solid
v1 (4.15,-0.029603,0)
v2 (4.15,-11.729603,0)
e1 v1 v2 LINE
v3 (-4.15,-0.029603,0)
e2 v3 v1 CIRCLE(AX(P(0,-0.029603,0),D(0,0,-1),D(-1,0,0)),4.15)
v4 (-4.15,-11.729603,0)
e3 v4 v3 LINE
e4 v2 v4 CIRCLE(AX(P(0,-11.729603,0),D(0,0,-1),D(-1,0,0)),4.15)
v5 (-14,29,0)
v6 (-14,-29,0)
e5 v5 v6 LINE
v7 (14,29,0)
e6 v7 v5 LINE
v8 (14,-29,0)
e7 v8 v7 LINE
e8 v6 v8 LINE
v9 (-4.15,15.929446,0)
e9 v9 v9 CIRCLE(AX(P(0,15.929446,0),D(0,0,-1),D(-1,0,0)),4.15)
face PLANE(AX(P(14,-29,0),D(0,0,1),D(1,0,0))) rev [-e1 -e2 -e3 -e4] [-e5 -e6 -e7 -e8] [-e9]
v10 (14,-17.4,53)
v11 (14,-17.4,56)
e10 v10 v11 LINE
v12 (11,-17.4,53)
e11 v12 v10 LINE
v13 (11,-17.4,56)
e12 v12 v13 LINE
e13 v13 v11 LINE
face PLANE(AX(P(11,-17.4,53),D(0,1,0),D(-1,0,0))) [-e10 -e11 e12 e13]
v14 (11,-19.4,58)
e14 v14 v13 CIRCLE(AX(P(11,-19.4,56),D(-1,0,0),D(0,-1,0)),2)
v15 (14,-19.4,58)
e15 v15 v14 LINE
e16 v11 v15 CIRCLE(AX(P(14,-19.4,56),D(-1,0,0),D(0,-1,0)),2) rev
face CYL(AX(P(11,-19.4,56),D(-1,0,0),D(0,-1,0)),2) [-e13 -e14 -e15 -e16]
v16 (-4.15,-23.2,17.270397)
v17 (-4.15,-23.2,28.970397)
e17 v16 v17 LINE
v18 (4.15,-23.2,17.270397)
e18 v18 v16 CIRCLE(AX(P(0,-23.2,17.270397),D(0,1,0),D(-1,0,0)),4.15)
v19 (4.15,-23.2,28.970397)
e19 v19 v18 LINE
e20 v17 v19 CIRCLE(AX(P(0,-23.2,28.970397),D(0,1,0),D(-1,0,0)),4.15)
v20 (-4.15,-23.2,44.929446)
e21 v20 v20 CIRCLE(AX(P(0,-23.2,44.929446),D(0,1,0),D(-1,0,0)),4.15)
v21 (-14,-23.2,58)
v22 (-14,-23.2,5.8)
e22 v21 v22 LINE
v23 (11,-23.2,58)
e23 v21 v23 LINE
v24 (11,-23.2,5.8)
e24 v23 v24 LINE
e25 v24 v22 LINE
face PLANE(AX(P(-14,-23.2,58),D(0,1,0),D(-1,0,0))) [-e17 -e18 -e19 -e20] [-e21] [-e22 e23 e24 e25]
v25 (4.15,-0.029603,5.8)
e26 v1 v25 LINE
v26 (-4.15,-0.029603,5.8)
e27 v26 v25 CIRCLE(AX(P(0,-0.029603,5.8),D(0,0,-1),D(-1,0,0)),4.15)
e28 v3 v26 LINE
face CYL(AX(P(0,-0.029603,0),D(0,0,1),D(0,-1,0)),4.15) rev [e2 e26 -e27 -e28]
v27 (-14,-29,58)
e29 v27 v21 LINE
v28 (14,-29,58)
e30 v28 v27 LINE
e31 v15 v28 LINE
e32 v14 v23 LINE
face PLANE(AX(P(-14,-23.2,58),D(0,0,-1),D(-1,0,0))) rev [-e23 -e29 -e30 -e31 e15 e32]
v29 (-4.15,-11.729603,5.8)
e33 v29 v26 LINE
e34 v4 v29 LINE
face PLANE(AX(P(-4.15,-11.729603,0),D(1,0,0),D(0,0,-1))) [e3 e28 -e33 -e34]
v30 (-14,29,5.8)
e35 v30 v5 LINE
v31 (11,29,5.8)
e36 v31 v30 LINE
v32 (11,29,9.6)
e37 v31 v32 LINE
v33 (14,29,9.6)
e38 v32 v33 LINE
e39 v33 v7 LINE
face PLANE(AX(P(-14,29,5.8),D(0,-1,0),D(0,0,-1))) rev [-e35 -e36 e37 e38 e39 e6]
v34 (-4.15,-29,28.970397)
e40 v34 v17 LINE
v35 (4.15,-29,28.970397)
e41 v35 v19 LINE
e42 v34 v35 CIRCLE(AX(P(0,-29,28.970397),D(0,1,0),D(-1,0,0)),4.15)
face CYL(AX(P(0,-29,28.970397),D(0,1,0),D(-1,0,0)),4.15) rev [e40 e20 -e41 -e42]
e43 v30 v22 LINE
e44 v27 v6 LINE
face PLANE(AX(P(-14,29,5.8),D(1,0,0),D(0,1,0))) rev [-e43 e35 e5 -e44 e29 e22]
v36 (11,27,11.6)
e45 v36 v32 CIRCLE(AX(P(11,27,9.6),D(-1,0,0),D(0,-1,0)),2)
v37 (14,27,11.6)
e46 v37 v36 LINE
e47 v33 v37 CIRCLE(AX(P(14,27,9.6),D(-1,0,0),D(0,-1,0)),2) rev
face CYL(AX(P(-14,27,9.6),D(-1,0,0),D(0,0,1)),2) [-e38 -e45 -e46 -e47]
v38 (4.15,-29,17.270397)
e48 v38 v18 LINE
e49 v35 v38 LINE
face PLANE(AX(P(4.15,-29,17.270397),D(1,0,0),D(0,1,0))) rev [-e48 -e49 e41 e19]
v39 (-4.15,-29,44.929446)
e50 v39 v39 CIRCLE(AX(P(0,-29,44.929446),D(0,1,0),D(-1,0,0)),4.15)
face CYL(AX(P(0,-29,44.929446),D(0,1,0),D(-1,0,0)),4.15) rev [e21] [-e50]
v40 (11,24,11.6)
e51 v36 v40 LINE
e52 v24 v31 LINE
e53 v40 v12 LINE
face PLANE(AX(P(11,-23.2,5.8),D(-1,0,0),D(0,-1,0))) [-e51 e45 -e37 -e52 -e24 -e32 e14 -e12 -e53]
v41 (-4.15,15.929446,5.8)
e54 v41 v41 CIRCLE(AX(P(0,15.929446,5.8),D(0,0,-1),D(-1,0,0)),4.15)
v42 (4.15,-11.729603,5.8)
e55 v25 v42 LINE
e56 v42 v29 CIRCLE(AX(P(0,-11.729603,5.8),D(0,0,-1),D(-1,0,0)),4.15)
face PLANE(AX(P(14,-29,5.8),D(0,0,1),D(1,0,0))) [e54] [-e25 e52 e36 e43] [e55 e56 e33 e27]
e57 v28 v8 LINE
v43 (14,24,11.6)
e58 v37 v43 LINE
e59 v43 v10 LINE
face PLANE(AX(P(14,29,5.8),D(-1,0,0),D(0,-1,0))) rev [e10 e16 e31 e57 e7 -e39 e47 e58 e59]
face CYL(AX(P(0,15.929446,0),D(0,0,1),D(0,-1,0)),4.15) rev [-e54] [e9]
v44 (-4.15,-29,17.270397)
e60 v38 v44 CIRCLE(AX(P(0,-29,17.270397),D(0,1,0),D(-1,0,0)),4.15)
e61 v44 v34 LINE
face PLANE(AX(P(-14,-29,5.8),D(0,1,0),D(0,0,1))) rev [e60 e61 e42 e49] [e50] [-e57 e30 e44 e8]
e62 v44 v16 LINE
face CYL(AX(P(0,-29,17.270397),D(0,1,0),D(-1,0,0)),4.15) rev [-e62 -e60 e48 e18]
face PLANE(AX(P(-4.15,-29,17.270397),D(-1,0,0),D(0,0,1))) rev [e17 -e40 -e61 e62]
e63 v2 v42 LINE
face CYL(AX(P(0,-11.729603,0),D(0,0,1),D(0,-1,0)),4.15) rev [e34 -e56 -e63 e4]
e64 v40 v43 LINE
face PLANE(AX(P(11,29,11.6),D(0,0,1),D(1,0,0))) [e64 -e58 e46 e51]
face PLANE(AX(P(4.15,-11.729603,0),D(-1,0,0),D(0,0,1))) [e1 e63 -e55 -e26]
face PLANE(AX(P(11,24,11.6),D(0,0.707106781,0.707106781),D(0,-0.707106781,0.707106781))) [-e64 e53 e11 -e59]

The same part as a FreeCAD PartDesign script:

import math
import FreeCAD as App
import Part
import Sketcher
Q = App.Units.Quantity


def edges_at(feature, points):
    """Names of the edges that pass closest to the given points."""
    edges = feature.Shape.Edges
    near = lambda p: min(range(len(edges)), key=lambda i: edges[i].distToShape(Part.Vertex(*p))[0])
    return sorted({f"Edge{near(p) + 1}" for p in points})

doc = App.newDocument("Part")
body = doc.addObject("PartDesign::Body", "Body")

# Sketch on XY plane
sketch1 = body.newObject("Sketcher::SketchObject", "Sketch")
sketch1.AttachmentSupport = (doc.getObject("XY_Plane"), [""])
sketch1.MapMode = "FlatFace"
sketch1.addGeometry(Part.LineSegment(App.Vector(-14, 29, 0), App.Vector(-14, -29, 0)), False)
sketch1.addGeometry(Part.LineSegment(App.Vector(-14, -29, 0), App.Vector(14, -29, 0)), False)
sketch1.addGeometry(Part.LineSegment(App.Vector(14, -29, 0), App.Vector(14, 29, 0)), False)
sketch1.addGeometry(Part.LineSegment(App.Vector(14, 29, 0), App.Vector(-14, 29, 0)), False)
sketch1.addConstraint(Sketcher.Constraint("Coincident", 0, 2, 1, 1))
sketch1.addConstraint(Sketcher.Constraint("Coincident", 1, 2, 2, 1))
sketch1.addConstraint(Sketcher.Constraint("Coincident", 2, 2, 3, 1))
sketch1.addConstraint(Sketcher.Constraint("Coincident", 3, 2, 0, 1))
sketch1.addConstraint(Sketcher.Constraint("Vertical", 0))
sketch1.addConstraint(Sketcher.Constraint("Horizontal", 1))
sketch1.addConstraint(Sketcher.Constraint("Vertical", 2))
sketch1.addConstraint(Sketcher.Constraint("Horizontal", 3))
sketch1.addConstraint(Sketcher.Constraint("Symmetric", 0, 2, 2, 2, -1, 1))
sketch1.addConstraint(Sketcher.Constraint("DistanceX", 1, 1, 1, 2, Q("28 mm")))
sketch1.addConstraint(Sketcher.Constraint("DistanceY", 0, 2, 0, 1, Q("58 mm")))
pad1 = body.newObject("PartDesign::Pad", "Pad")
pad1.Profile = sketch1
pad1.Length = 5.8

# Sketch on XY plane
sketch2 = body.newObject("Sketcher::SketchObject", "Sketch001")
sketch2.AttachmentSupport = (doc.getObject("XY_Plane"), [""])
sketch2.MapMode = "FlatFace"
sketch2.addGeometry(Part.LineSegment(App.Vector(14, -23.2, 0), App.Vector(14, -29, 0)), False)
sketch2.addGeometry(Part.LineSegment(App.Vector(14, -29, 0), App.Vector(-14, -29, 0)), False)
sketch2.addGeometry(Part.LineSegment(App.Vector(-14, -29, 0), App.Vector(-14, -23.2, 0)), False)
sketch2.addGeometry(Part.LineSegment(App.Vector(-14, -23.2, 0), App.Vector(14, -23.2, 0)), False)
sketch2.addConstraint(Sketcher.Constraint("Coincident", 0, 2, 1, 1))
sketch2.addConstraint(Sketcher.Constraint("Coincident", 1, 2, 2, 1))
sketch2.addConstraint(Sketcher.Constraint("Coincident", 2, 2, 3, 1))
sketch2.addConstraint(Sketcher.Constraint("Coincident", 3, 2, 0, 1))
sketch2.addConstraint(Sketcher.Constraint("Vertical", 0))
sketch2.addConstraint(Sketcher.Constraint("Horizontal", 1))
sketch2.addConstraint(Sketcher.Constraint("Vertical", 2))
sketch2.addConstraint(Sketcher.Constraint("Horizontal", 3))
sketch2.addConstraint(Sketcher.Constraint("DistanceX", 1, 2, 1, 1, Q("28 mm")))
sketch2.addConstraint(Sketcher.Constraint("DistanceY", 0, 2, 0, 1, Q("5.8 mm")))
sketch2.addConstraint(Sketcher.Constraint("DistanceX", -1, 1, 0, 2, Q("14 mm")))
sketch2.addConstraint(Sketcher.Constraint("DistanceY", 0, 2, -1, 1, Q("29 mm")))
pad2 = body.newObject("PartDesign::Pad", "Pad001")
pad2.Profile = sketch2
pad2.Length = 58

# Sketch on YZ plane
sketch3 = body.newObject("Sketcher::SketchObject", "Sketch002")
sketch3.AttachmentSupport = (doc.getObject("YZ_Plane"), [""])
sketch3.MapMode = "FlatFace"
sketch3.AttachmentOffset = App.Placement(App.Vector(0, 0, 14), App.Rotation())
sketch3.addGeometry(Part.LineSegment(App.Vector(29, 5.8, 0), App.Vector(29, 11.6, 0)), False)
sketch3.addGeometry(Part.LineSegment(App.Vector(29, 11.6, 0), App.Vector(24, 11.6, 0)), False)
sketch3.addGeometry(Part.LineSegment(App.Vector(24, 11.6, 0), App.Vector(-17.4, 53, 0)), False)
sketch3.addGeometry(Part.LineSegment(App.Vector(-17.4, 53, 0), App.Vector(-17.4, 58, 0)), False)
sketch3.addGeometry(Part.LineSegment(App.Vector(-17.4, 58, 0), App.Vector(-23.2, 58, 0)), False)
sketch3.addGeometry(Part.LineSegment(App.Vector(-23.2, 58, 0), App.Vector(-23.2, 5.8, 0)), False)
sketch3.addGeometry(Part.LineSegment(App.Vector(-23.2, 5.8, 0), App.Vector(29, 5.8, 0)), False)
sketch3.addConstraint(Sketcher.Constraint("Coincident", 0, 2, 1, 1))
sketch3.addConstraint(Sketcher.Constraint("Coincident", 1, 2, 2, 1))
sketch3.addConstraint(Sketcher.Constraint("Coincident", 2, 2, 3, 1))
sketch3.addConstraint(Sketcher.Constraint("Coincident", 3, 2, 4, 1))
sketch3.addConstraint(Sketcher.Constraint("Coincident", 4, 2, 5, 1))
sketch3.addConstraint(Sketcher.Constraint("Coincident", 5, 2, 6, 1))
sketch3.addConstraint(Sketcher.Constraint("Coincident", 6, 2, 0, 1))
sketch3.addConstraint(Sketcher.Constraint("Vertical", 0))
sketch3.addConstraint(Sketcher.Constraint("Horizontal", 1))
sketch3.addConstraint(Sketcher.Constraint("Vertical", 3))
sketch3.addConstraint(Sketcher.Constraint("Horizontal", 4))
sketch3.addConstraint(Sketcher.Constraint("Vertical", 5))
sketch3.addConstraint(Sketcher.Constraint("Horizontal", 6))
sketch3.addConstraint(Sketcher.Constraint("Equal", 4, 0))
sketch3.addConstraint(Sketcher.Constraint("Equal", 1, 3))
sketch3.addConstraint(Sketcher.Constraint("Equal", 6, 5))
sketch3.addConstraint(Sketcher.Constraint("DistanceX", 1, 2, 1, 1, Q("5 mm")))
sketch3.addConstraint(Sketcher.Constraint("DistanceX", 4, 2, 4, 1, Q("5.8 mm")))
sketch3.addConstraint(Sketcher.Constraint("DistanceX", 6, 1, 6, 2, Q("52.2 mm")))
sketch3.addConstraint(Sketcher.Constraint("DistanceX", -1, 1, 0, 2, Q("29 mm")))
sketch3.addConstraint(Sketcher.Constraint("DistanceY", -1, 1, 2, 2, Q("53 mm")))
pad3 = body.newObject("PartDesign::Pad", "Pad002")
pad3.Profile = sketch3
pad3.Length = 3
pad3.Reversed = True
doc.recompute()

fillet = body.newObject("PartDesign::Fillet", "Fillet")
fillet.Base = (pad3, edges_at(pad3, [(12.5, -17.4, 58), (12.5, 29, 11.6)]))
fillet.Radius = 2

# Sketch on XZ plane
sketch4 = body.newObject("Sketcher::SketchObject", "Sketch003")
sketch4.AttachmentSupport = (doc.getObject("XZ_Plane"), [""])
sketch4.MapMode = "FlatFace"
sketch4.AttachmentOffset = App.Placement(App.Vector(0, 0, 23.2), App.Rotation())
sketch4.addGeometry(Part.Circle(App.Vector(0, 44.929446, 0), App.Vector(0, 0, 1), 4.15), False)
sketch4.addGeometry(Part.LineSegment(App.Vector(4.15, 28.970397, 0), App.Vector(4.15, 17.270397, 0)), False)
sketch4.addGeometry(Part.ArcOfCircle(Part.Circle(App.Vector(0, 17.270397, 0), App.Vector(0, 0, 1), 4.15), math.radians(180), math.radians(360)), False)
sketch4.addGeometry(Part.LineSegment(App.Vector(-4.15, 17.270397, 0), App.Vector(-4.15, 28.970397, 0)), False)
sketch4.addGeometry(Part.ArcOfCircle(Part.Circle(App.Vector(0, 28.970397, 0), App.Vector(0, 0, 1), 4.15), math.radians(0), math.radians(180)), False)
sketch4.addConstraint(Sketcher.Constraint("Tangent", 1, 2, 2, 2))
sketch4.addConstraint(Sketcher.Constraint("Tangent", 2, 1, 3, 1))
sketch4.addConstraint(Sketcher.Constraint("Tangent", 3, 2, 4, 2))
sketch4.addConstraint(Sketcher.Constraint("Tangent", 4, 1, 1, 1))
sketch4.addConstraint(Sketcher.Constraint("Vertical", 1))
sketch4.addConstraint(Sketcher.Constraint("Vertical", 3))
sketch4.addConstraint(Sketcher.Constraint("Equal", 0, 2))
sketch4.addConstraint(Sketcher.Constraint("PointOnObject", 0, 3, -2))
sketch4.addConstraint(Sketcher.Constraint("PointOnObject", 2, 3, -2))
sketch4.addConstraint(Sketcher.Constraint("Diameter", 0, Q("8.3 mm")))
sketch4.addConstraint(Sketcher.Constraint("DistanceY", 1, 2, 1, 1, Q("11.7 mm")))
sketch4.addConstraint(Sketcher.Constraint("DistanceY", 2, 3, 0, 3, Q("27.659049 mm")))
sketch4.addConstraint(Sketcher.Constraint("DistanceY", -1, 1, 0, 3, Q("44.929446 mm")))
pocket1 = body.newObject("PartDesign::Pocket", "Pocket")
pocket1.Profile = sketch4
pocket1.Type = "ThroughAll"
pocket1.Reversed = True
doc.recompute()

datumplane = body.newObject("PartDesign::Plane", "DatumPlane")
datumplane.Placement = App.Placement(App.Vector(0, -14.5, 14.5), App.Rotation(App.Vector(0, 0.707106781, 0.707106781), App.Vector(-1, 0, 0), App.Vector(0, -0.707106781, 0.707106781), "ZXY"))
mirrored = body.newObject("PartDesign::Mirrored", "Mirrored")
mirrored.Originals = [pocket1]
mirrored.MirrorPlane = (datumplane, [""])
body.Tip = mirrored

doc.recompute()
